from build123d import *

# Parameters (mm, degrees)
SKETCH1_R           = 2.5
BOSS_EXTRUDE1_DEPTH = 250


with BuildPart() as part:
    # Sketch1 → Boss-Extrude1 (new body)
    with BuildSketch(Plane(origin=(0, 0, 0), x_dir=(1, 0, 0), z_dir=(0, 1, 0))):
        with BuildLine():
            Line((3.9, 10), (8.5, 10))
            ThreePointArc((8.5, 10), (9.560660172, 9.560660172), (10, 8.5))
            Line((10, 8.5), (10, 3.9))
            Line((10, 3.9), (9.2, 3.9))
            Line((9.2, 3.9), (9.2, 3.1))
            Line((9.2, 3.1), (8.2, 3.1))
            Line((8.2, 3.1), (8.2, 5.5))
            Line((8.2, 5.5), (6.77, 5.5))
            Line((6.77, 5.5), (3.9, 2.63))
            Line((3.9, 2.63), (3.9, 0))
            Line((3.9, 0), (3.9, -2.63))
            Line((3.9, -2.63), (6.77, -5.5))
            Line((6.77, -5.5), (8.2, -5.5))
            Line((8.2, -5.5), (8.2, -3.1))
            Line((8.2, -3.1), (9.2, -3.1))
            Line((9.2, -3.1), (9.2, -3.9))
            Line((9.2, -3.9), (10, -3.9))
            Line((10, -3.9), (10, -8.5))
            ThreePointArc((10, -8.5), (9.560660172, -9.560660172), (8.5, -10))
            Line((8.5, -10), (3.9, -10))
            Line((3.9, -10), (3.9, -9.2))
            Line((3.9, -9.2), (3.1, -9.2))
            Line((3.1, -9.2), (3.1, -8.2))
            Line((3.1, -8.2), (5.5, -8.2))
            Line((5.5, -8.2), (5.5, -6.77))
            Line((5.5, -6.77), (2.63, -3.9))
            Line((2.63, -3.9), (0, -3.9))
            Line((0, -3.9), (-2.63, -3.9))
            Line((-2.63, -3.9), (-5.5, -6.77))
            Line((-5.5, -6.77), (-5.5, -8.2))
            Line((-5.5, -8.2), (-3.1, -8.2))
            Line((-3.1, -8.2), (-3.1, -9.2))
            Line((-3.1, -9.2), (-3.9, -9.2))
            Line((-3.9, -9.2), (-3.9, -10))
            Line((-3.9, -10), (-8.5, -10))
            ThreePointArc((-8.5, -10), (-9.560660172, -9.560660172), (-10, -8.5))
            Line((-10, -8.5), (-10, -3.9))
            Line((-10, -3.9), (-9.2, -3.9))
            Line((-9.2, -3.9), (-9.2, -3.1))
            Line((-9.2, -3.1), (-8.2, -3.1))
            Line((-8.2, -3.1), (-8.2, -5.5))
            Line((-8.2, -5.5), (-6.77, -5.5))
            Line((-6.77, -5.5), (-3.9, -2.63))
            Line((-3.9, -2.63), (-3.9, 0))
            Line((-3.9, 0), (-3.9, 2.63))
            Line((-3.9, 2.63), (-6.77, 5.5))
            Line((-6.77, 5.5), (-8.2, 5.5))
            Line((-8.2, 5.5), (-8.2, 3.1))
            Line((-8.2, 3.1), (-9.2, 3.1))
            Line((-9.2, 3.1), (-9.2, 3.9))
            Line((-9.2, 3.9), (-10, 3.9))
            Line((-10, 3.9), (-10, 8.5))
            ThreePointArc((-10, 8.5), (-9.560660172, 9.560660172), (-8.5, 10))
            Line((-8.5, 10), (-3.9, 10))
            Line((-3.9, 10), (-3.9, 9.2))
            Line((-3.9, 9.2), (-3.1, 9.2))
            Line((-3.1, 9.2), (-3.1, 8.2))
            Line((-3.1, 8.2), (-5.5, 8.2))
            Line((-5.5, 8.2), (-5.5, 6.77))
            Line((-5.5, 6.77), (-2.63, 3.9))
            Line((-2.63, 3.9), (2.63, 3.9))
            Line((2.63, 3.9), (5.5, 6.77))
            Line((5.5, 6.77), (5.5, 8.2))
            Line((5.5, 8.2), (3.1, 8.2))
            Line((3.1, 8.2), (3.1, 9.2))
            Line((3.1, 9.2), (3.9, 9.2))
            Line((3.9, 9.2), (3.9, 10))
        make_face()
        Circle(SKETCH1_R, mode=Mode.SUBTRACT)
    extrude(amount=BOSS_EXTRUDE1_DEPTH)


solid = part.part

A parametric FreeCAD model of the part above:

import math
import FreeCAD as App
import Part
import Sketcher
from FreeCAD import Vector
Q = App.Units.Quantity

doc = App.newDocument("Part")
params = doc.addObject("Spreadsheet::Sheet", "Params")
for row, (alias, value) in enumerate([
    ("sketch1_diameter", "5 mm"),
    ("sketch1_radius", "1.5 mm"),
    ("sketch1_width", "1 mm"),
    ("sketch1_width2", "4.6 mm"),
    ("sketch1_width3", "0.8 mm"),
    ("pad1_length", "250 mm"),
], start=1):
    params.set(f"A{row}", alias)
    params.set(f"B{row}", "=" + value)
    params.setAlias(f"B{row}", alias)

body = doc.addObject("PartDesign::Body", "Body")

# Sketch on XZ plane
sketch1 = body.newObject("Sketcher::SketchObject", "Sketch")
sketch1.AttachmentSupport = (doc.getObject("XZ_Plane"), [""])
sketch1.MapMode = "FlatFace"
sketch1.addGeometry([
    Part.LineSegment(Vector(8.5, -10, 0), Vector(3.9, -10, 0)),  # 0
    Part.LineSegment(Vector(3.9, -10, 0), Vector(3.9, -9.2, 0)),  # 1
    Part.LineSegment(Vector(3.9, -9.2, 0), Vector(3.1, -9.2, 0)),  # 2
    Part.LineSegment(Vector(3.1, -9.2, 0), Vector(3.1, -8.2, 0)),  # 3
    Part.LineSegment(Vector(3.1, -8.2, 0), Vector(5.5, -8.2, 0)),  # 4
    Part.LineSegment(Vector(5.5, -8.2, 0), Vector(5.5, -6.8, 0)),  # 5
    Part.LineSegment(Vector(5.5, -6.8, 0), Vector(2.6, -3.9, 0)),  # 6
    Part.LineSegment(Vector(2.6, -3.9, 0), Vector(-2.6, -3.9, 0)),  # 7
    Part.LineSegment(Vector(-2.6, -3.9, 0), Vector(-5.5, -6.8, 0)),  # 8
    Part.LineSegment(Vector(-5.5, -6.8, 0), Vector(-5.5, -8.2, 0)),  # 9
    Part.LineSegment(Vector(-5.5, -8.2, 0), Vector(-3.1, -8.2, 0)),  # 10
    Part.LineSegment(Vector(-3.1, -8.2, 0), Vector(-3.1, -9.2, 0)),  # 11
    Part.LineSegment(Vector(-3.1, -9.2, 0), Vector(-3.9, -9.2, 0)),  # 12
    Part.LineSegment(Vector(-3.9, -9.2, 0), Vector(-3.9, -10, 0)),  # 13
    Part.LineSegment(Vector(-3.9, -10, 0), Vector(-8.5, -10, 0)),  # 14
    Part.ArcOfCircle(Part.Circle(Vector(-8.5, -8.5, 0), Vector(0, 0, 1), 1.5), math.radians(180), math.radians(270)),  # 15
    Part.LineSegment(Vector(-10, -8.5, 0), Vector(-10, -3.9, 0)),  # 16
    Part.LineSegment(Vector(-10, -3.9, 0), Vector(-9.2, -3.9, 0)),  # 17
    Part.LineSegment(Vector(-9.2, -3.9, 0), Vector(-9.2, -3.1, 0)),  # 18
    Part.LineSegment(Vector(-9.2, -3.1, 0), Vector(-8.2, -3.1, 0)),  # 19
    Part.LineSegment(Vector(-8.2, -3.1, 0), Vector(-8.2, -5.5, 0)),  # 20
    Part.LineSegment(Vector(-8.2, -5.5, 0), Vector(-6.8, -5.5, 0)),  # 21
    Part.LineSegment(Vector(-6.8, -5.5, 0), Vector(-3.9, -2.6, 0)),  # 22
    Part.LineSegment(Vector(-3.9, -2.6, 0), Vector(-3.9, 2.6, 0)),  # 23
    Part.LineSegment(Vector(-3.9, 2.6, 0), Vector(-6.8, 5.5, 0)),  # 24
    Part.LineSegment(Vector(-6.8, 5.5, 0), Vector(-8.2, 5.5, 0)),  # 25
    Part.LineSegment(Vector(-8.2, 5.5, 0), Vector(-8.2, 3.1, 0)),  # 26
    Part.LineSegment(Vector(-8.2, 3.1, 0), Vector(-9.2, 3.1, 0)),  # 27
    Part.LineSegment(Vector(-9.2, 3.1, 0), Vector(-9.2, 3.9, 0)),  # 28
    Part.LineSegment(Vector(-9.2, 3.9, 0), Vector(-10, 3.9, 0)),  # 29
    Part.LineSegment(Vector(-10, 3.9, 0), Vector(-10, 8.5, 0)),  # 30
    Part.ArcOfCircle(Part.Circle(Vector(-8.5, 8.5, 0), Vector(0, 0, 1), 1.5), math.radians(90), math.radians(180)),  # 31
    Part.LineSegment(Vector(-8.5, 10, 0), Vector(-3.9, 10, 0)),  # 32
    Part.LineSegment(Vector(-3.9, 10, 0), Vector(-3.9, 9.2, 0)),  # 33
    Part.LineSegment(Vector(-3.9, 9.2, 0), Vector(-3.1, 9.2, 0)),  # 34
    Part.LineSegment(Vector(-3.1, 9.2, 0), Vector(-3.1, 8.2, 0)),  # 35
    Part.LineSegment(Vector(-3.1, 8.2, 0), Vector(-5.5, 8.2, 0)),  # 36
    Part.LineSegment(Vector(-5.5, 8.2, 0), Vector(-5.5, 6.8, 0)),  # 37
    Part.LineSegment(Vector(-5.5, 6.8, 0), Vector(-2.6, 3.9, 0)),  # 38
    Part.LineSegment(Vector(-2.6, 3.9, 0), Vector(2.6, 3.9, 0)),  # 39
    Part.LineSegment(Vector(2.6, 3.9, 0), Vector(5.5, 6.8, 0)),  # 40
    Part.LineSegment(Vector(5.5, 6.8, 0), Vector(5.5, 8.2, 0)),  # 41
    Part.LineSegment(Vector(5.5, 8.2, 0), Vector(3.1, 8.2, 0)),  # 42
    Part.LineSegment(Vector(3.1, 8.2, 0), Vector(3.1, 9.2, 0)),  # 43
    Part.LineSegment(Vector(3.1, 9.2, 0), Vector(3.9, 9.2, 0)),  # 44
    Part.LineSegment(Vector(3.9, 9.2, 0), Vector(3.9, 10, 0)),  # 45
    Part.LineSegment(Vector(3.9, 10, 0), Vector(8.5, 10, 0)),  # 46
    Part.ArcOfCircle(Part.Circle(Vector(8.5, 8.5, 0), Vector(0, 0, 1), 1.5), math.radians(0), math.radians(90)),  # 47
    Part.LineSegment(Vector(10, 8.5, 0), Vector(10, 3.9, 0)),  # 48
    Part.LineSegment(Vector(10, 3.9, 0), Vector(9.2, 3.9, 0)),  # 49
    Part.LineSegment(Vector(9.2, 3.9, 0), Vector(9.2, 3.1, 0)),  # 50
    Part.LineSegment(Vector(9.2, 3.1, 0), Vector(8.2, 3.1, 0)),  # 51
    Part.LineSegment(Vector(8.2, 3.1, 0), Vector(8.2, 5.5, 0)),  # 52
    Part.LineSegment(Vector(8.2, 5.5, 0), Vector(6.8, 5.5, 0)),  # 53
    Part.LineSegment(Vector(6.8, 5.5, 0), Vector(3.9, 2.6, 0)),  # 54
    Part.LineSegment(Vector(3.9, 2.6, 0), Vector(3.9, -2.6, 0)),  # 55
    Part.LineSegment(Vector(3.9, -2.6, 0), Vector(6.8, -5.5, 0)),  # 56
    Part.LineSegment(Vector(6.8, -5.5, 0), Vector(8.2, -5.5, 0)),  # 57
    Part.LineSegment(Vector(8.2, -5.5, 0), Vector(8.2, -3.1, 0)),  # 58
    Part.LineSegment(Vector(8.2, -3.1, 0), Vector(9.2, -3.1, 0)),  # 59
    Part.LineSegment(Vector(9.2, -3.1, 0), Vector(9.2, -3.9, 0)),  # 60
    Part.LineSegment(Vector(9.2, -3.9, 0), Vector(10, -3.9, 0)),  # 61
    Part.LineSegment(Vector(10, -3.9, 0), Vector(10, -8.5, 0)),  # 62
    Part.ArcOfCircle(Part.Circle(Vector(8.5, -8.5, 0), Vector(0, 0, 1), 1.5), math.radians(-90), math.radians(0)),  # 63
    Part.Circle(Vector(0, 0, 0), Vector(0, 0, 1), 2.5),  # 64
], False)
sketch1.addConstraint([
    Sketcher.Constraint("Coincident", 0, 2, 1, 1),
    Sketcher.Constraint("Coincident", 1, 2, 2, 1),
    Sketcher.Constraint("Coincident", 2, 2, 3, 1),
    Sketcher.Constraint("Coincident", 3, 2, 4, 1),
    Sketcher.Constraint("Coincident", 4, 2, 5, 1),
    Sketcher.Constraint("Coincident", 5, 2, 6, 1),
    Sketcher.Constraint("Coincident", 6, 2, 7, 1),
    Sketcher.Constraint("Coincident", 7, 2, 8, 1),
    Sketcher.Constraint("Coincident", 8, 2, 9, 1),
    Sketcher.Constraint("Coincident", 9, 2, 10, 1),
    Sketcher.Constraint("Coincident", 10, 2, 11, 1),
    Sketcher.Constraint("Coincident", 11, 2, 12, 1),
    Sketcher.Constraint("Coincident", 12, 2, 13, 1),
    Sketcher.Constraint("Coincident", 13, 2, 14, 1),
    Sketcher.Constraint("Tangent", 14, 2, 15, 2),
    Sketcher.Constraint("Tangent", 15, 1, 16, 1),
    Sketcher.Constraint("Coincident", 16, 2, 17, 1),
    Sketcher.Constraint("Coincident", 17, 2, 18, 1),
    Sketcher.Constraint("Coincident", 18, 2, 19, 1),
    Sketcher.Constraint("Coincident", 19, 2, 20, 1),
    Sketcher.Constraint("Coincident", 20, 2, 21, 1),
    Sketcher.Constraint("Coincident", 21, 2, 22, 1),
    Sketcher.Constraint("Coincident", 22, 2, 23, 1),
    Sketcher.Constraint("Coincident", 23, 2, 24, 1),
    Sketcher.Constraint("Coincident", 24, 2, 25, 1),
    Sketcher.Constraint("Coincident", 25, 2, 26, 1),
    Sketcher.Constraint("Coincident", 26, 2, 27, 1),
    Sketcher.Constraint("Coincident", 27, 2, 28, 1),
    Sketcher.Constraint("Coincident", 28, 2, 29, 1),
    Sketcher.Constraint("Coincident", 29, 2, 30, 1),
    Sketcher.Constraint("Tangent", 30, 2, 31, 2),
    Sketcher.Constraint("Tangent", 31, 1, 32, 1),
    Sketcher.Constraint("Coincident", 32, 2, 33, 1),
    Sketcher.Constraint("Coincident", 33, 2, 34, 1),
    Sketcher.Constraint("Coincident", 34, 2, 35, 1),
    Sketcher.Constraint("Coincident", 35, 2, 36, 1),
    Sketcher.Constraint("Coincident", 36, 2, 37, 1),
    Sketcher.Constraint("Coincident", 37, 2, 38, 1),
    Sketcher.Constraint("Coincident", 38, 2, 39, 1),
    Sketcher.Constraint("Coincident", 39, 2, 40, 1),
    Sketcher.Constraint("Coincident", 40, 2, 41, 1),
    Sketcher.Constraint("Coincident", 41, 2, 42, 1),
    Sketcher.Constraint("Coincident", 42, 2, 43, 1),
    Sketcher.Constraint("Coincident", 43, 2, 44, 1),
    Sketcher.Constraint("Coincident", 44, 2, 45, 1),
    Sketcher.Constraint("Coincident", 45, 2, 46, 1),
    Sketcher.Constraint("Tangent", 46, 2, 47, 2),
    Sketcher.Constraint("Tangent", 47, 1, 48, 1),
    Sketcher.Constraint("Coincident", 48, 2, 49, 1),
    Sketcher.Constraint("Coincident", 49, 2, 50, 1),
    Sketcher.Constraint("Coincident", 50, 2, 51, 1),
    Sketcher.Constraint("Coincident", 51, 2, 52, 1),
    Sketcher.Constraint("Coincident", 52, 2, 53, 1),
    Sketcher.Constraint("Coincident", 53, 2, 54, 1),
    Sketcher.Constraint("Coincident", 54, 2, 55, 1),
    Sketcher.Constraint("Coincident", 55, 2, 56, 1),
    Sketcher.Constraint("Coincident", 56, 2, 57, 1),
    Sketcher.Constraint("Coincident", 57, 2, 58, 1),
    Sketcher.Constraint("Coincident", 58, 2, 59, 1),
    Sketcher.Constraint("Coincident", 59, 2, 60, 1),
    Sketcher.Constraint("Coincident", 60, 2, 61, 1),
    Sketcher.Constraint("Coincident", 61, 2, 62, 1),
    Sketcher.Constraint("Tangent", 62, 2, 63, 2),
    Sketcher.Constraint("Tangent", 63, 1, 0, 1),
    Sketcher.Constraint("Horizontal", 0),
    Sketcher.Constraint("Vertical", 1),
    Sketcher.Constraint("Horizontal", 2),
    Sketcher.Constraint("Vertical", 3),
    Sketcher.Constraint("Horizontal", 4),
    Sketcher.Constraint("Vertical", 5),
    Sketcher.Constraint("Horizontal", 7),
    Sketcher.Constraint("Vertical", 9),
    Sketcher.Constraint("Horizontal", 10),
    Sketcher.Constraint("Vertical", 11),
    Sketcher.Constraint("Horizontal", 12),
    Sketcher.Constraint("Vertical", 13),
    Sketcher.Constraint("Horizontal", 14),
    Sketcher.Constraint("Vertical", 16),
    Sketcher.Constraint("Horizontal", 17),
    Sketcher.Constraint("Vertical", 18),
    Sketcher.Constraint("Horizontal", 19),
    Sketcher.Constraint("Vertical", 20),
    Sketcher.Constraint("Horizontal", 21),
    Sketcher.Constraint("Vertical", 23),
    Sketcher.Constraint("Horizontal", 25),
    Sketcher.Constraint("Vertical", 26),
    Sketcher.Constraint("Horizontal", 27),
    Sketcher.Constraint("Vertical", 28),
    Sketcher.Constraint("Horizontal", 29),
    Sketcher.Constraint("Vertical", 30),
    Sketcher.Constraint("Horizontal", 32),
    Sketcher.Constraint("Vertical", 33),
    Sketcher.Constraint("Horizontal", 34),
    Sketcher.Constraint("Vertical", 35),
    Sketcher.Constraint("Horizontal", 36),
    Sketcher.Constraint("Vertical", 37),
    Sketcher.Constraint("Horizontal", 39),
    Sketcher.Constraint("Vertical", 41),
    Sketcher.Constraint("Horizontal", 42),
    Sketcher.Constraint("Vertical", 43),
    Sketcher.Constraint("Horizontal", 44),
    Sketcher.Constraint("Vertical", 45),
    Sketcher.Constraint("Horizontal", 46),
    Sketcher.Constraint("Vertical", 48),
    Sketcher.Constraint("Horizontal", 49),
    Sketcher.Constraint("Vertical", 50),
    Sketcher.Constraint("Horizontal", 51),
    Sketcher.Constraint("Vertical", 52),
    Sketcher.Constraint("Horizontal", 53),
    Sketcher.Constraint("Vertical", 55),
    Sketcher.Constraint("Horizontal", 57),
    Sketcher.Constraint("Vertical", 58),
    Sketcher.Constraint("Horizontal", 59),
    Sketcher.Constraint("Vertical", 60),
    Sketcher.Constraint("Horizontal", 61),
    Sketcher.Constraint("Vertical", 62),
    Sketcher.Constraint("Coincident", 64, 3, -1, 1),
    Sketcher.Constraint("Equal", 15, 31),
    Sketcher.Constraint("Equal", 31, 47),
    Sketcher.Constraint("Equal", 47, 63),
    Sketcher.Constraint("Symmetric", 15, 3, 47, 3, -1, 1),
    Sketcher.Constraint("Symmetric", 31, 3, 63, 3, -1, 1),
    Sketcher.Constraint("Symmetric", 1, 2, 33, 2, -1, 1),
    Sketcher.Constraint("Symmetric", 3, 2, 35, 2, -1, 1),
    Sketcher.Constraint("Symmetric", 5, 2, 37, 2, -1, 1),
    Sketcher.Constraint("Symmetric", 6, 2, 38, 2, -1, 1),
    Sketcher.Constraint("Symmetric", 8, 2, 40, 2, -1, 1),
    Sketcher.Constraint("Symmetric", 10, 2, 42, 2, -1, 1),
    Sketcher.Constraint("Symmetric", 12, 2, 44, 2, -1, 1),
    Sketcher.Constraint("Symmetric", 17, 2, 49, 2, -1, 1),
    Sketcher.Constraint("Symmetric", 19, 2, 51, 2, -1, 1),
    Sketcher.Constraint("Symmetric", 21, 2, 53, 2, -1, 1),
    Sketcher.Constraint("Symmetric", 22, 2, 54, 2, -1, 1),
    Sketcher.Constraint("Symmetric", 24, 2, 56, 2, -1, 1),
    Sketcher.Constraint("Symmetric", 26, 2, 58, 2, -1, 1),
    Sketcher.Constraint("Symmetric", 28, 2, 60, 2, -1, 1),
    Sketcher.Constraint("Symmetric", 31, 3, 47, 3, -2),
    Sketcher.Constraint("Symmetric", 5, 2, 8, 2, -2),
    Sketcher.Constraint("Symmetric", 3, 2, 10, 2, -2),
    Sketcher.Constraint("Symmetric", 1, 2, 12, 2, -2),
    Sketcher.Constraint("Symmetric", 28, 2, 49, 2, -2),
    Sketcher.Constraint("Symmetric", 26, 2, 51, 2, -2),
    Sketcher.Constraint("Symmetric", 24, 2, 53, 2, -2),
    Sketcher.Constraint("Perpendicular", 6, 8),
    Sketcher.Constraint("Parallel", 8, 22),
    Sketcher.Constraint("Perpendicular", 22, 24),
    Sketcher.Constraint("Perpendicular", 38, 40),
    Sketcher.Constraint("Perpendicular", 54, 56),
    Sketcher.Constraint("Horizontal", 7, 2, 16, 2),
    Sketcher.Constraint("Horizontal", 23, 2, 54, 2),
    Sketcher.Constraint("Vertical", 13, 2, 22, 2),
    Sketcher.Constraint("Equal", 12, 17),
    Sketcher.Constraint("Equal", 61, 1),
    Sketcher.Constraint("Equal", 59, 3),
    Sketcher.Constraint("Equal", 57, 5),
    Sketcher.Constraint("Equal", 46, 16),
    Sketcher.Constraint("Equal", 13, 18),
    Sketcher.Constraint("Equal", 42, 20),
    Sketcher.Constraint("Equal", 39, 23),
    Sketcher.Constraint("Diameter", 64, Q("5 mm")),
    Sketcher.Constraint("Radius", 15, Q("1.5 mm")),
    Sketcher.Constraint("DistanceX", 19, 1, 19, 2, Q("1 mm")),
    Sketcher.Constraint("DistanceX", 0, 2, 0, 1, Q("4.6 mm")),
    Sketcher.Constraint("DistanceX", 2, 2, 2, 1, Q("0.8 mm")),
    Sketcher.Constraint("DistanceX", 4, 1, 4, 2, Q("2.4 mm")),
    Sketcher.Constraint("DistanceY", 0, 2, -1, 1, Q("10 mm")),
    Sketcher.Constraint("DistanceX", 7, 2, 7, 1, Q("5.26 mm")),
])
sketch1.setExpression("Constraints[159]", "Params.sketch1_diameter")
sketch1.setExpression("Constraints[160]", "Params.sketch1_radius")
sketch1.setExpression("Constraints[161]", "Params.sketch1_width")
sketch1.setExpression("Constraints[162]", "Params.sketch1_width2")
sketch1.setExpression("Constraints[163]", "Params.sketch1_width3")
pad1 = body.newObject("PartDesign::Pad", "Pad")
pad1.Profile = sketch1
pad1.setExpression("Length", "Params.pad1_length")
pad1.Reversed = True

doc.recompute()
